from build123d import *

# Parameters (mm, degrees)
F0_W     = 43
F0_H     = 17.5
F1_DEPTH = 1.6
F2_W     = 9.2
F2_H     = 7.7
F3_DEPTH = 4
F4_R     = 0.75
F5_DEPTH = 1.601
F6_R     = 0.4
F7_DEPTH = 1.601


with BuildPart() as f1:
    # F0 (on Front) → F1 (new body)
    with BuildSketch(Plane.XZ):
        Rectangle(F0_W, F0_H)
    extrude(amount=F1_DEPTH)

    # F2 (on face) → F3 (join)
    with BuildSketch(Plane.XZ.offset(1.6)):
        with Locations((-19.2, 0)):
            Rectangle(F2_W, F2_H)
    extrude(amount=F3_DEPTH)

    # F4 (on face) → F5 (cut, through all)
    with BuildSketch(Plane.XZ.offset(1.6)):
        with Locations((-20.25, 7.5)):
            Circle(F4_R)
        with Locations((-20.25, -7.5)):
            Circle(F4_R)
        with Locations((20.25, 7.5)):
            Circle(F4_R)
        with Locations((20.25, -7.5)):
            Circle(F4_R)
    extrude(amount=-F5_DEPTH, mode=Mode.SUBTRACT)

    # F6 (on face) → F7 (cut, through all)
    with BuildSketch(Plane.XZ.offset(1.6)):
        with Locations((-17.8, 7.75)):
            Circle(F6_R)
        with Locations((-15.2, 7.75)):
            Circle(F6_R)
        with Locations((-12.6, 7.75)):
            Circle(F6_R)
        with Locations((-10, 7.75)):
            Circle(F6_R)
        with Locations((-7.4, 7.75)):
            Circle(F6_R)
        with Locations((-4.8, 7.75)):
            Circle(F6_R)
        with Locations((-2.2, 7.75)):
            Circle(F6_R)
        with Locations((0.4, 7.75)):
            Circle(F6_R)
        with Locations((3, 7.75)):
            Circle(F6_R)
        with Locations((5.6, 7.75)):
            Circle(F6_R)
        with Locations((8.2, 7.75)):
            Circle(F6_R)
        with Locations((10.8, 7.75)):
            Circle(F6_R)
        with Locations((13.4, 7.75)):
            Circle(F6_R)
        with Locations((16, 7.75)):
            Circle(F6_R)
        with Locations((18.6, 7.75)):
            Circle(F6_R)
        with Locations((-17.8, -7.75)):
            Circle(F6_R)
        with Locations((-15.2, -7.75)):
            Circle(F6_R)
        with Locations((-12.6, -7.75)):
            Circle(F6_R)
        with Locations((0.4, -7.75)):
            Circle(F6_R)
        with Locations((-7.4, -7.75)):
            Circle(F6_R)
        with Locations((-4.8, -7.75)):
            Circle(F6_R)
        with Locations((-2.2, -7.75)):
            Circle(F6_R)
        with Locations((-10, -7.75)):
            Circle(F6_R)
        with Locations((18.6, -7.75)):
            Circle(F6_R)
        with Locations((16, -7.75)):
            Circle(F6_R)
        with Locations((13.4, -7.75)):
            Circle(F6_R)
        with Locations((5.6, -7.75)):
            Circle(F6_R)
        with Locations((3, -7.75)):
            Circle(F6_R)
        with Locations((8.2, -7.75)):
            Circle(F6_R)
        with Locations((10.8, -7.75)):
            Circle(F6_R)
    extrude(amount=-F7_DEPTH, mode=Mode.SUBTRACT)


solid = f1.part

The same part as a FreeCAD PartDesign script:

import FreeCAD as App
import Part
import Sketcher

V = App.Vector
Q = App.Units.Quantity

doc = App.newDocument("Part")
body = doc.addObject("PartDesign::Body", "Body")

# Sketch on XZ plane
sketch1 = doc.addObject("Sketcher::SketchObject", "Sketch")
body.addObject(sketch1)
sketch1.AttachmentSupport = (doc.XZ_Plane, [""])
sketch1.MapMode = "FlatFace"
sketch1.addGeometry([
    Part.LineSegment(V(-22, 9, 0), V(-22, -9, 0)),
    Part.LineSegment(V(-22, -9, 0), V(22, -9, 0)),
    Part.LineSegment(V(22, -9, 0), V(22, 9, 0)),
    Part.LineSegment(V(22, 9, 0), V(-22, 9, 0)),
], False)
sketch1.addConstraint([
    Sketcher.Constraint("Coincident", 0, 2, 1, 1),
    Sketcher.Constraint("Coincident", 1, 2, 2, 1),
    Sketcher.Constraint("Coincident", 2, 2, 3, 1),
    Sketcher.Constraint("Coincident", 3, 2, 0, 1),
    Sketcher.Constraint("Vertical", 0),
    Sketcher.Constraint("Horizontal", 1),
    Sketcher.Constraint("Vertical", 2),
    Sketcher.Constraint("Horizontal", 3),
    Sketcher.Constraint("Symmetric", 0, 2, 2, 2, -1, 1),
    Sketcher.Constraint("DistanceX", 1, 1, 1, 2, Q("43 mm")),
    Sketcher.Constraint("DistanceY", 0, 2, 0, 1, Q("17.5 mm")),
])
pad1 = doc.addObject("PartDesign::Pad", "Pad")
body.addObject(pad1)
pad1.Profile = sketch1
pad1.Length = 1.6

# Sketch on XZ plane
sketch2 = doc.addObject("Sketcher::SketchObject", "Sketch001")
body.addObject(sketch2)
sketch2.AttachmentSupport = (doc.XZ_Plane, [""])
sketch2.MapMode = "FlatFace"
sketch2.AttachmentOffset = App.Placement(V(0, 0, 1.6), App.Rotation())
sketch2.addGeometry([
    Part.LineSegment(V(-24, 4, 0), V(-24, -4, 0)),
    Part.LineSegment(V(-24, -4, 0), V(-15, -4, 0)),
    Part.LineSegment(V(-15, -4, 0), V(-15, 4, 0)),
    Part.LineSegment(V(-15, 4, 0), V(-24, 4, 0)),
], False)
sketch2.addConstraint([
    Sketcher.Constraint("Coincident", 0, 2, 1, 1),
    Sketcher.Constraint("Coincident", 1, 2, 2, 1),
    Sketcher.Constraint("Coincident", 2, 2, 3, 1),
    Sketcher.Constraint("Coincident", 3, 2, 0, 1),
    Sketcher.Constraint("Vertical", 0),
    Sketcher.Constraint("Horizontal", 1),
    Sketcher.Constraint("Vertical", 2),
    Sketcher.Constraint("Horizontal", 3),
    Sketcher.Constraint("DistanceX", 1, 1, 1, 2, Q("9.2 mm")),
    Sketcher.Constraint("DistanceY", 0, 2, 0, 1, Q("7.7 mm")),
    Sketcher.Constraint("DistanceX", 0, 2, -1, 1, Q("23.8 mm")),
    Sketcher.Constraint("DistanceY", 0, 2, -1, 1, Q("3.85 mm")),
])
pad2 = doc.addObject("PartDesign::Pad", "Pad001")
body.addObject(pad2)
pad2.Profile = sketch2
pad2.Length = 4

# Sketch on XZ plane
sketch3 = doc.addObject("Sketcher::SketchObject", "Sketch002")
body.addObject(sketch3)
sketch3.AttachmentSupport = (doc.XZ_Plane, [""])
sketch3.MapMode = "FlatFace"
sketch3.AttachmentOffset = App.Placement(V(0, 0, 1.6), App.Rotation())
sketch3.addGeometry([
    Part.Circle(V(-20.2, 7.5, 0), V(0, 0, 1), 0.8),
    Part.Circle(V(-20.2, -7.5, 0), V(0, 0, 1), 0.8),
    Part.Circle(V(20.2, 7.5, 0), V(0, 0, 1), 0.8),
    Part.Circle(V(20.2, -7.5, 0), V(0, 0, 1), 0.8),
], False)
sketch3.addConstraint([
    Sketcher.Constraint("Equal", 0, 1),
    Sketcher.Constraint("Equal", 1, 2),
    Sketcher.Constraint("Equal", 2, 3),
    Sketcher.Constraint("Symmetric", 1, 3, 2, 3, -1, 1),
    Sketcher.Constraint("Symmetric", 0, 3, 3, 3, -1, 1),
    Sketcher.Constraint("Symmetric", 0, 3, 2, 3, -2),
    Sketcher.Constraint("Diameter", 0, Q("1.5 mm")),
    Sketcher.Constraint("DistanceY", 1, 3, 0, 3, Q("15 mm")),
    Sketcher.Constraint("DistanceX", 0, 3, 2, 3, Q("40.5 mm")),
])
pocket1 = doc.addObject("PartDesign::Pocket", "Pocket")
body.addObject(pocket1)
pocket1.Profile = sketch3
pocket1.Type = "ThroughAll"

# Sketch on XZ plane
sketch4 = doc.addObject("Sketcher::SketchObject", "Sketch003")
body.addObject(sketch4)
sketch4.AttachmentSupport = (doc.XZ_Plane, [""])
sketch4.MapMode = "FlatFace"
sketch4.AttachmentOffset = App.Placement(V(0, 0, 1.6), App.Rotation())
sketch4.addGeometry([
    Part.Circle(V(-17.8, 7.75, 0), V(0, 0, 1), 0.4),  # 0
    Part.Circle(V(-15.2, 7.75, 0), V(0, 0, 1), 0.4),  # 1
    Part.Circle(V(-12.6, 7.75, 0), V(0, 0, 1), 0.4),  # 2
    Part.Circle(V(-10, 7.75, 0), V(0, 0, 1), 0.4),  # 3
    Part.Circle(V(-7.4, 7.75, 0), V(0, 0, 1), 0.4),  # 4
    Part.Circle(V(-4.8, 7.75, 0), V(0, 0, 1), 0.4),  # 5
    Part.Circle(V(-2.2, 7.75, 0), V(0, 0, 1), 0.4),  # 6
    Part.Circle(V(0.4, 7.75, 0), V(0, 0, 1), 0.4),  # 7
    Part.Circle(V(3, 7.75, 0), V(0, 0, 1), 0.4),  # 8
    Part.Circle(V(5.6, 7.75, 0), V(0, 0, 1), 0.4),  # 9
    Part.Circle(V(8.2, 7.75, 0), V(0, 0, 1), 0.4),  # 10
    Part.Circle(V(10.8, 7.75, 0), V(0, 0, 1), 0.4),  # 11
    Part.Circle(V(13.4, 7.75, 0), V(0, 0, 1), 0.4),  # 12
    Part.Circle(V(16, 7.75, 0), V(0, 0, 1), 0.4),  # 13
    Part.Circle(V(18.6, 7.75, 0), V(0, 0, 1), 0.4),  # 14
    Part.Circle(V(-17.8, -7.75, 0), V(0, 0, 1), 0.4),  # 15
    Part.Circle(V(-15.2, -7.75, 0), V(0, 0, 1), 0.4),  # 16
    Part.Circle(V(-12.6, -7.75, 0), V(0, 0, 1), 0.4),  # 17
    Part.Circle(V(0.4, -7.75, 0), V(0, 0, 1), 0.4),  # 18
    Part.Circle(V(-7.4, -7.75, 0), V(0, 0, 1), 0.4),  # 19
    Part.Circle(V(-4.8, -7.75, 0), V(0, 0, 1), 0.4),  # 20
    Part.Circle(V(-2.2, -7.75, 0), V(0, 0, 1), 0.4),  # 21
    Part.Circle(V(-10, -7.75, 0), V(0, 0, 1), 0.4),  # 22
    Part.Circle(V(18.6, -7.75, 0), V(0, 0, 1), 0.4),  # 23
    Part.Circle(V(16, -7.75, 0), V(0, 0, 1), 0.4),  # 24
    Part.Circle(V(13.4, -7.75, 0), V(0, 0, 1), 0.4),  # 25
    Part.Circle(V(5.6, -7.75, 0), V(0, 0, 1), 0.4),  # 26
    Part.Circle(V(3, -7.75, 0), V(0, 0, 1), 0.4),  # 27
    Part.Circle(V(8.2, -7.75, 0), V(0, 0, 1), 0.4),  # 28
    Part.Circle(V(10.8, -7.75, 0), V(0, 0, 1), 0.4),  # 29
], False)
sketch4.addConstraint([
    Sketcher.Constraint("Equal", 0, 1),
    Sketcher.Constraint("Equal", 1, 2),
    Sketcher.Constraint("Equal", 2, 3),
    Sketcher.Constraint("Equal", 3, 4),
    Sketcher.Constraint("Equal", 4, 5),
    Sketcher.Constraint("Equal", 5, 6),
    Sketcher.Constraint("Equal", 6, 7),
    Sketcher.Constraint("Equal", 7, 8),
    Sketcher.Constraint("Equal", 8, 9),
    Sketcher.Constraint("Equal", 9, 10),
    Sketcher.Constraint("Equal", 10, 11),
    Sketcher.Constraint("Equal", 11, 12),
    Sketcher.Constraint("Equal", 12, 13),
    Sketcher.Constraint("Equal", 13, 14),
    Sketcher.Constraint("Equal", 14, 15),
    Sketcher.Constraint("Equal", 15, 16),
    Sketcher.Constraint("Equal", 16, 17),
    Sketcher.Constraint("Equal", 17, 18),
    Sketcher.Constraint("Equal", 18, 19),
    Sketcher.Constraint("Equal", 19, 20),
    Sketcher.Constraint("Equal", 20, 21),
    Sketcher.Constraint("Equal", 21, 22),
    Sketcher.Constraint("Equal", 22, 23),
    Sketcher.Constraint("Equal", 23, 24),
    Sketcher.Constraint("Equal", 24, 25),
    Sketcher.Constraint("Equal", 25, 26),
    Sketcher.Constraint("Equal", 26, 27),
    Sketcher.Constraint("Equal", 27, 28),
    Sketcher.Constraint("Equal", 28, 29),
    Sketcher.Constraint("Symmetric", 0, 3, 15, 3, -1),
    Sketcher.Constraint("Symmetric", 1, 3, 16, 3, -1),
    Sketcher.Constraint("Symmetric", 2, 3, 17, 3, -1),
    Sketcher.Constraint("Symmetric", 7, 3, 18, 3, -1),
    Sketcher.Constraint("Symmetric", 4, 3, 19, 3, -1),
    Sketcher.Constraint("Symmetric", 5, 3, 20, 3, -1),
    Sketcher.Constraint("Symmetric", 6, 3, 21, 3, -1),
    Sketcher.Constraint("Symmetric", 3, 3, 22, 3, -1),
    Sketcher.Constraint("Symmetric", 14, 3, 23, 3, -1),
    Sketcher.Constraint("Symmetric", 13, 3, 24, 3, -1),
    Sketcher.Constraint("Symmetric", 12, 3, 25, 3, -1),
    Sketcher.Constraint("Symmetric", 9, 3, 26, 3, -1),
    Sketcher.Constraint("Symmetric", 8, 3, 27, 3, -1),
    Sketcher.Constraint("Symmetric", 10, 3, 28, 3, -1),
    Sketcher.Constraint("Symmetric", 11, 3, 29, 3, -1),
    Sketcher.Constraint("Horizontal", 0, 3, 1, 3),
    Sketcher.Constraint("Horizontal", 1, 3, 2, 3),
    Sketcher.Constraint("Horizontal", 2, 3, 3, 3),
    Sketcher.Constraint("Horizontal", 3, 3, 4, 3),
    Sketcher.Constraint("Horizontal", 4, 3, 5, 3),
    Sketcher.Constraint("Horizontal", 5, 3, 6, 3),
    Sketcher.Constraint("Horizontal", 6, 3, 7, 3),
    Sketcher.Constraint("Horizontal", 7, 3, 8, 3),
    Sketcher.Constraint("Horizontal", 8, 3, 9, 3),
    Sketcher.Constraint("Horizontal", 9, 3, 10, 3),
    Sketcher.Constraint("Horizontal", 10, 3, 11, 3),
    Sketcher.Constraint("Horizontal", 11, 3, 12, 3),
    Sketcher.Constraint("Horizontal", 12, 3, 13, 3),
    Sketcher.Constraint("Horizontal", 13, 3, 14, 3),
    Sketcher.Constraint("Diameter", 0, Q("0.8 mm")),
    Sketcher.Constraint("DistanceX", 3, 3, -1, 1, Q("10 mm")),
    Sketcher.Constraint("DistanceX", -1, 1, 8, 3, Q("3 mm")),
    Sketcher.Constraint("DistanceX", -1, 1, 13, 3, Q("16 mm")),
    Sketcher.Constraint("DistanceX", 0, 3, 5, 3, Q("13 mm")),
    Sketcher.Constraint("DistanceX", 1, 3, 6, 3, Q("13 mm")),
    Sketcher.Constraint("DistanceX", 2, 3, 7, 3, Q("13 mm")),
    Sketcher.Constraint("DistanceX", 4, 3, 9, 3, Q("13 mm")),
    Sketcher.Constraint("DistanceX", 5, 3, 10, 3, Q("13 mm")),
    Sketcher.Constraint("DistanceX", 6, 3, 11, 3, Q("13 mm")),
    Sketcher.Constraint("DistanceX", 7, 3, 12, 3, Q("13 mm")),
    Sketcher.Constraint("DistanceX", 9, 3, 14, 3, Q("13 mm")),
    Sketcher.Constraint("DistanceX", 0, 3, -1, 1, Q("17.8 mm")),
    Sketcher.Constraint("DistanceX", 1, 3, -1, 1, Q("15.2 mm")),
    Sketcher.Constraint("DistanceX", 2, 3, -1, 1, Q("12.6 mm")),
    Sketcher.Constraint("DistanceX", 4, 3, -1, 1, Q("7.4 mm")),
    Sketcher.Constraint("DistanceY", 15, 3, 0, 3, Q("15.5 mm")),
])
pocket2 = doc.addObject("PartDesign::Pocket", "Pocket001")
body.addObject(pocket2)
pocket2.Profile = sketch4
pocket2.Type = "ThroughAll"

doc.recompute()
